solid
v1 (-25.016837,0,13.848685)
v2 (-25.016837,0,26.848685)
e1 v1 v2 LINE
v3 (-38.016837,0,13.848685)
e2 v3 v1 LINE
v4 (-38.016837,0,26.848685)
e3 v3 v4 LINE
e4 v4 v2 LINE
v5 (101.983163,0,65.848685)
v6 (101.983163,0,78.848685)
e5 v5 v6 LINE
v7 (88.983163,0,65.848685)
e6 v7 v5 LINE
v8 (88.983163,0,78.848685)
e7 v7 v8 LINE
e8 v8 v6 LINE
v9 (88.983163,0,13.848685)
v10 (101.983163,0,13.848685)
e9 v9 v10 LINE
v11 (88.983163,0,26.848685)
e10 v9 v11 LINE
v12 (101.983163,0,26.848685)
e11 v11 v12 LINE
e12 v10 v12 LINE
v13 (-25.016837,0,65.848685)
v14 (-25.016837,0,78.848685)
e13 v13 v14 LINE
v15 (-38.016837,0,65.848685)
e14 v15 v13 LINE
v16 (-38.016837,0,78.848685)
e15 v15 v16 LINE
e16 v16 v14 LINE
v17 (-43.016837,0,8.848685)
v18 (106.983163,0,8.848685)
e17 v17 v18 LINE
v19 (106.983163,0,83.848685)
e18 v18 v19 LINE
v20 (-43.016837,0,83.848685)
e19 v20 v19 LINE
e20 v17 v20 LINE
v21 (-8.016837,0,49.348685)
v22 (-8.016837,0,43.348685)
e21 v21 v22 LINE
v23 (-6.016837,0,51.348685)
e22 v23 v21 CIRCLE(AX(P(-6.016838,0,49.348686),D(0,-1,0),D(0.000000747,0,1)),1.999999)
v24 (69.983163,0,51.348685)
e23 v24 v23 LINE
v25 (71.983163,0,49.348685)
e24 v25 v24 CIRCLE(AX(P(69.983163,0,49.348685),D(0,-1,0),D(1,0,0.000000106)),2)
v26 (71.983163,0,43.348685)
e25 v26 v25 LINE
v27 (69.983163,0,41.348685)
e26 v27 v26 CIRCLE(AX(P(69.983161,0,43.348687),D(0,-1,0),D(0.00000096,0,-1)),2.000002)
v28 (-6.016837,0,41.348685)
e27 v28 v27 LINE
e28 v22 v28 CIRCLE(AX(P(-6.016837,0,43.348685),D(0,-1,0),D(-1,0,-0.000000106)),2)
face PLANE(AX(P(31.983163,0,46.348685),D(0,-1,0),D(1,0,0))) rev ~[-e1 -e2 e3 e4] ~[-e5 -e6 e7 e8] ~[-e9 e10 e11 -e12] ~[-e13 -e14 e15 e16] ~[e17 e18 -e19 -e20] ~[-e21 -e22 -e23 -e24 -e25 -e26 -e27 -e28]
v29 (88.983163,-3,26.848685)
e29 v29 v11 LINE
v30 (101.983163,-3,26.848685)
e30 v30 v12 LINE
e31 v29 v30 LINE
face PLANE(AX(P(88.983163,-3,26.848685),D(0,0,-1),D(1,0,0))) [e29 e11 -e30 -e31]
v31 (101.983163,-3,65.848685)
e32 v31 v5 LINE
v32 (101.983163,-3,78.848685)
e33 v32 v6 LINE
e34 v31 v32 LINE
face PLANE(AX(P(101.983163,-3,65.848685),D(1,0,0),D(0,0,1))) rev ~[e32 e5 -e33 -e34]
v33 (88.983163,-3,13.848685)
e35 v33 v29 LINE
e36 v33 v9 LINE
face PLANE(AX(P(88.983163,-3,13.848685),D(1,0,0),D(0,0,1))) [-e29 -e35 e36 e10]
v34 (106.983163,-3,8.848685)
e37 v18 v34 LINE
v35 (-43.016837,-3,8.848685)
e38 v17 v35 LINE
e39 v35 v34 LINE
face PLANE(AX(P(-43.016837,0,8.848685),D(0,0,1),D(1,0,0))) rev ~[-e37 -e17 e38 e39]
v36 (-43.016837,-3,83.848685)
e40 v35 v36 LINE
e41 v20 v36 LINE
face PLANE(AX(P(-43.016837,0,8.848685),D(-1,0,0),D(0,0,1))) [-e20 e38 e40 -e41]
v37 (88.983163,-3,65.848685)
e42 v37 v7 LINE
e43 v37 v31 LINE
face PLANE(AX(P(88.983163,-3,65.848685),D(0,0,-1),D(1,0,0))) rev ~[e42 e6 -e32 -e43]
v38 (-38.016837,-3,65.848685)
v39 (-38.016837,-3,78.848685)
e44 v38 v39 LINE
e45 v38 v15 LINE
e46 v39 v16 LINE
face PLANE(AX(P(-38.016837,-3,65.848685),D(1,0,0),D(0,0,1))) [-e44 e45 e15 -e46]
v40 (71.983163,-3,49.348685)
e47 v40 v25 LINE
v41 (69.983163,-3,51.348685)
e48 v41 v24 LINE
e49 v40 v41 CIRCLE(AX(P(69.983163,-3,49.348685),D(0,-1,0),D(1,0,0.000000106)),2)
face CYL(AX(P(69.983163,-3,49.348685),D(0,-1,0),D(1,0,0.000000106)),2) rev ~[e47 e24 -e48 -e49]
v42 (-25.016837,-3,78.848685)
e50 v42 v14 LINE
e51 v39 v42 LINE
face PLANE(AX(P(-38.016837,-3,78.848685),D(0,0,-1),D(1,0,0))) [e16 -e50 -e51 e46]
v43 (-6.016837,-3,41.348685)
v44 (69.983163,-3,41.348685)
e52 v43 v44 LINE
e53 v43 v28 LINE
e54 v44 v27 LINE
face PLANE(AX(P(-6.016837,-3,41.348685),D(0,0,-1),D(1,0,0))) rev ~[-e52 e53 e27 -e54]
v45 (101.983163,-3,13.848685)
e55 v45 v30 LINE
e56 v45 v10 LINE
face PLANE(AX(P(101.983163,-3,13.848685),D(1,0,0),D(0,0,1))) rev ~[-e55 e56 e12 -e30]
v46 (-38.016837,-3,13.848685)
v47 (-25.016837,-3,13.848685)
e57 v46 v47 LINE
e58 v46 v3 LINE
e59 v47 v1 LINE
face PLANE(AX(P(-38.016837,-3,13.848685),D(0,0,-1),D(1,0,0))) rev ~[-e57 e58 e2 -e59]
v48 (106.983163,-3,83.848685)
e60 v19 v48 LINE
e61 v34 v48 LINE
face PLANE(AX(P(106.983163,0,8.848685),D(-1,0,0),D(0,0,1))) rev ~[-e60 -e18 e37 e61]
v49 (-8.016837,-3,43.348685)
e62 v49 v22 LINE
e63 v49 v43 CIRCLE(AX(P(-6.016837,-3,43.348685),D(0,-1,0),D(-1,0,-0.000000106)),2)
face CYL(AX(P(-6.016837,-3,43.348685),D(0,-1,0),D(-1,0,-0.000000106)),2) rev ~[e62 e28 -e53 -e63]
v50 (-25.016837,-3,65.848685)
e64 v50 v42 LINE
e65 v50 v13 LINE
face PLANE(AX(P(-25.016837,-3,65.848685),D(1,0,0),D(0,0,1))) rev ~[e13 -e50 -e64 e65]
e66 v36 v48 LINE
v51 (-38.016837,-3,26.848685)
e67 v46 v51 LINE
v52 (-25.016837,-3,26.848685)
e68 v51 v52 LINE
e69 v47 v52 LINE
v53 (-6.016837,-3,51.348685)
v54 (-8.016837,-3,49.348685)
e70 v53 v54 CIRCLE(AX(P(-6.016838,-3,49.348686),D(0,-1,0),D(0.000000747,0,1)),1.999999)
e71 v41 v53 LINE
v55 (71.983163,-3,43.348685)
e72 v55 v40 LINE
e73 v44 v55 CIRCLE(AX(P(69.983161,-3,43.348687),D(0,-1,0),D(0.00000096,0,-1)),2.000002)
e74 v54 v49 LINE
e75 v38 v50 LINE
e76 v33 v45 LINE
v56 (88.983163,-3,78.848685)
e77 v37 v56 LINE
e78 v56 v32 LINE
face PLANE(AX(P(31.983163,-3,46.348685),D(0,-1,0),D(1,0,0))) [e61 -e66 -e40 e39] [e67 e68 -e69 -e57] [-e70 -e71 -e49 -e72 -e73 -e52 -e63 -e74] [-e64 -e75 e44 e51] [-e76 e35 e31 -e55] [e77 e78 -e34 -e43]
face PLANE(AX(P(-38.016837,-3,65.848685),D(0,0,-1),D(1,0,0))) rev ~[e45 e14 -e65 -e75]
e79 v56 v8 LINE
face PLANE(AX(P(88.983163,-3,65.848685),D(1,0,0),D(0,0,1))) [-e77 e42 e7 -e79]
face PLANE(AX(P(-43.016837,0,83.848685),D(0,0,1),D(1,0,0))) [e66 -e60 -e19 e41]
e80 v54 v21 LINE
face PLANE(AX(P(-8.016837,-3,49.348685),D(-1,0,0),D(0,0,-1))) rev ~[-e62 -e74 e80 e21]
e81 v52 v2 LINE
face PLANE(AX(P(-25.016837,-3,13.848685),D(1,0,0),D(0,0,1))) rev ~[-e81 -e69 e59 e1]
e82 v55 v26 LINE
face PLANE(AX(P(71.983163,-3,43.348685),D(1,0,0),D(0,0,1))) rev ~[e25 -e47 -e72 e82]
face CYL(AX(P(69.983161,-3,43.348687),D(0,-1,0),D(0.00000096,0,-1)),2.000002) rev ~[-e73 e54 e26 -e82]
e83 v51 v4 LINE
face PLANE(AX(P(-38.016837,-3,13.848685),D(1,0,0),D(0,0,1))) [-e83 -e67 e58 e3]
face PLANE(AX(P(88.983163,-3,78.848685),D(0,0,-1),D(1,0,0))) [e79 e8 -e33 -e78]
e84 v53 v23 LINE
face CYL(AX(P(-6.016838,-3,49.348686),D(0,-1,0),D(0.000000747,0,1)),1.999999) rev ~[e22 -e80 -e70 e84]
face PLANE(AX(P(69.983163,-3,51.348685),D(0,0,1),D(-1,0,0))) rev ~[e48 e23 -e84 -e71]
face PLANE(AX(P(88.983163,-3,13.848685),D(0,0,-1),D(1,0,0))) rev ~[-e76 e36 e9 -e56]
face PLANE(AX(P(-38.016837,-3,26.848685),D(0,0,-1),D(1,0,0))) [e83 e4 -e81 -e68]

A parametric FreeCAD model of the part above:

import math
import FreeCAD as App
import Part
import Sketcher

V = App.Vector
Q = App.Units.Quantity


def add_polygon(sketch, points):
    """Adds a closed chain of lines whose ends are joined by coincident constraints."""
    first, n = sketch.GeometryCount, len(points)
    for a, b in zip(points, points[1:] + points[:1]):
        sketch.addGeometry(Part.LineSegment(App.Vector(*a, 0), App.Vector(*b, 0)), False)
    for i in range(n):
        sketch.addConstraint(Sketcher.Constraint("Coincident", first + i, 2, first + (i + 1) % n, 1))

doc = App.newDocument("Part")
body = doc.addObject("PartDesign::Body", "Body")

sketch1 = body.newObject("Sketcher::SketchObject", "Sketch")
sketch1.AttachmentSupport = (doc.getObject("XZ_Plane"), [""])
sketch1.MapMode = "FlatFace"
add_polygon(sketch1, [(-43, 84), (-43, 9), (107, 9), (107, 84)])
sketch1.addConstraint([
    Sketcher.Constraint("Vertical", 0),
    Sketcher.Constraint("Horizontal", 1),
    Sketcher.Constraint("Vertical", 2),
    Sketcher.Constraint("Horizontal", 3),
    Sketcher.Constraint("DistanceX", 1, 1, 1, 2, Q("150 mm")),
    Sketcher.Constraint("DistanceY", 0, 2, 0, 1, Q("75 mm")),
    Sketcher.Constraint("DistanceX", 0, 2, -1, 1, Q("43.016837 mm")),
    Sketcher.Constraint("DistanceY", -1, 1, 0, 2, Q("8.848685 mm")),
])
pad1 = body.newObject("PartDesign::Pad", "Pad")
pad1.Profile = sketch1
pad1.Length = 3

sketch2 = body.newObject("Sketcher::SketchObject", "Sketch001")
sketch2.AttachmentSupport = (doc.getObject("XZ_Plane"), [""])
sketch2.MapMode = "FlatFace"
sketch2.AttachmentOffset = App.Placement(V(0, 0, 3), App.Rotation())
add_polygon(sketch2, [(-38, 78.8), (-38, 65.8), (-25, 65.8), (-25, 78.8)])
add_polygon(sketch2, [(-38, 26.8), (-38, 13.8), (-25, 13.8), (-25, 26.8)])
add_polygon(sketch2, [(89, 26.8), (89, 13.8), (102, 13.8), (102, 26.8)])
add_polygon(sketch2, [(89, 78.8), (89, 65.8), (102, 65.8), (102, 78.8)])
sketch2.addGeometry(Part.LineSegment(V(70, 51.3, 0), V(-6, 51.3, 0)), False)
sketch2.addGeometry(Part.ArcOfCircle(Part.Circle(V(-6, 49.3, 0), V(0, 0, 1), 2), math.radians(90), math.radians(180)), False)
sketch2.addGeometry(Part.LineSegment(V(-8, 49.3, 0), V(-8, 43.3, 0)), False)
sketch2.addGeometry(Part.ArcOfCircle(Part.Circle(V(-6, 43.3, 0), V(0, 0, 1), 2), math.radians(-180), math.radians(-90)), False)
sketch2.addGeometry(Part.LineSegment(V(-6, 41.3, 0), V(70, 41.3, 0)), False)
sketch2.addGeometry(Part.ArcOfCircle(Part.Circle(V(70, 43.3, 0), V(0, 0, 1), 2), math.radians(-90), math.radians(0)), False)
sketch2.addGeometry(Part.LineSegment(V(72, 43.3, 0), V(72, 49.3, 0)), False)
sketch2.addGeometry(Part.ArcOfCircle(Part.Circle(V(70, 49.3, 0), V(0, 0, 1), 2), math.radians(0), math.radians(90)), False)
sketch2.addConstraint([
    Sketcher.Constraint("Tangent", 16, 2, 17, 1),
    Sketcher.Constraint("Tangent", 17, 2, 18, 1),
    Sketcher.Constraint("Tangent", 18, 2, 19, 1),
    Sketcher.Constraint("Tangent", 19, 2, 20, 1),
    Sketcher.Constraint("Tangent", 20, 2, 21, 1),
    Sketcher.Constraint("Tangent", 21, 2, 22, 1),
    Sketcher.Constraint("Tangent", 22, 2, 23, 1),
    Sketcher.Constraint("Tangent", 23, 2, 16, 1),
    Sketcher.Constraint("Vertical", 0),
    Sketcher.Constraint("Horizontal", 1),
    Sketcher.Constraint("Vertical", 2),
    Sketcher.Constraint("Horizontal", 3),
    Sketcher.Constraint("Vertical", 4),
    Sketcher.Constraint("Horizontal", 5),
    Sketcher.Constraint("Vertical", 6),
    Sketcher.Constraint("Horizontal", 7),
    Sketcher.Constraint("Vertical", 8),
    Sketcher.Constraint("Horizontal", 9),
    Sketcher.Constraint("Vertical", 10),
    Sketcher.Constraint("Horizontal", 11),
    Sketcher.Constraint("Vertical", 12),
    Sketcher.Constraint("Horizontal", 13),
    Sketcher.Constraint("Vertical", 14),
    Sketcher.Constraint("Horizontal", 15),
    Sketcher.Constraint("Horizontal", 16),
    Sketcher.Constraint("Vertical", 18),
    Sketcher.Constraint("Horizontal", 20),
    Sketcher.Constraint("Vertical", 22),
    Sketcher.Constraint("Equal", 17, 19),
    Sketcher.Constraint("Equal", 19, 21),
    Sketcher.Constraint("Equal", 21, 23),
    Sketcher.Constraint("Horizontal", 5, 2, 8, 2),
    Sketcher.Constraint("Horizontal", 7, 2, 10, 2),
    Sketcher.Constraint("Horizontal", 1, 2, 12, 2),
    Sketcher.Constraint("Horizontal", 3, 2, 14, 2),
    Sketcher.Constraint("Vertical", 3, 2, 4, 2),
    Sketcher.Constraint("Vertical", 2, 2, 5, 2),
    Sketcher.Constraint("Vertical", 11, 2, 12, 2),
    Sketcher.Constraint("Vertical", 10, 2, 13, 2),
    Sketcher.Constraint("Equal", 7, 9),
    Sketcher.Constraint("Equal", 15, 0),
    Sketcher.Constraint("Equal", 2, 4),
    Sketcher.Constraint("Radius", 17, Q("1.999999 mm")),
    Sketcher.Constraint("DistanceX", 1, 1, 1, 2, Q("13 mm")),
    Sketcher.Constraint("DistanceX", 16, 2, 16, 1, Q("76 mm")),
    Sketcher.Constraint("DistanceY", 18, 2, 18, 1, Q("6 mm")),
    Sketcher.Constraint("DistanceX", 0, 2, 17, 3, Q("31.999999 mm")),
    Sketcher.Constraint("DistanceY", 4, 2, 0, 2, Q("52 mm")),
    Sketcher.Constraint("DistanceX", 21, 3, 8, 2, Q("19.000002 mm")),
    Sketcher.Constraint("DistanceY", 17, 3, 0, 2, Q("16.499999 mm")),
    Sketcher.Constraint("DistanceX", 17, 3, -1, 1, Q("6.016838 mm")),
    Sketcher.Constraint("DistanceY", -1, 1, 17, 3, Q("49.348686 mm")),
])
pocket1 = body.newObject("PartDesign::Pocket", "Pocket")
pocket1.Profile = sketch2
pocket1.Length = 4

doc.recompute()
